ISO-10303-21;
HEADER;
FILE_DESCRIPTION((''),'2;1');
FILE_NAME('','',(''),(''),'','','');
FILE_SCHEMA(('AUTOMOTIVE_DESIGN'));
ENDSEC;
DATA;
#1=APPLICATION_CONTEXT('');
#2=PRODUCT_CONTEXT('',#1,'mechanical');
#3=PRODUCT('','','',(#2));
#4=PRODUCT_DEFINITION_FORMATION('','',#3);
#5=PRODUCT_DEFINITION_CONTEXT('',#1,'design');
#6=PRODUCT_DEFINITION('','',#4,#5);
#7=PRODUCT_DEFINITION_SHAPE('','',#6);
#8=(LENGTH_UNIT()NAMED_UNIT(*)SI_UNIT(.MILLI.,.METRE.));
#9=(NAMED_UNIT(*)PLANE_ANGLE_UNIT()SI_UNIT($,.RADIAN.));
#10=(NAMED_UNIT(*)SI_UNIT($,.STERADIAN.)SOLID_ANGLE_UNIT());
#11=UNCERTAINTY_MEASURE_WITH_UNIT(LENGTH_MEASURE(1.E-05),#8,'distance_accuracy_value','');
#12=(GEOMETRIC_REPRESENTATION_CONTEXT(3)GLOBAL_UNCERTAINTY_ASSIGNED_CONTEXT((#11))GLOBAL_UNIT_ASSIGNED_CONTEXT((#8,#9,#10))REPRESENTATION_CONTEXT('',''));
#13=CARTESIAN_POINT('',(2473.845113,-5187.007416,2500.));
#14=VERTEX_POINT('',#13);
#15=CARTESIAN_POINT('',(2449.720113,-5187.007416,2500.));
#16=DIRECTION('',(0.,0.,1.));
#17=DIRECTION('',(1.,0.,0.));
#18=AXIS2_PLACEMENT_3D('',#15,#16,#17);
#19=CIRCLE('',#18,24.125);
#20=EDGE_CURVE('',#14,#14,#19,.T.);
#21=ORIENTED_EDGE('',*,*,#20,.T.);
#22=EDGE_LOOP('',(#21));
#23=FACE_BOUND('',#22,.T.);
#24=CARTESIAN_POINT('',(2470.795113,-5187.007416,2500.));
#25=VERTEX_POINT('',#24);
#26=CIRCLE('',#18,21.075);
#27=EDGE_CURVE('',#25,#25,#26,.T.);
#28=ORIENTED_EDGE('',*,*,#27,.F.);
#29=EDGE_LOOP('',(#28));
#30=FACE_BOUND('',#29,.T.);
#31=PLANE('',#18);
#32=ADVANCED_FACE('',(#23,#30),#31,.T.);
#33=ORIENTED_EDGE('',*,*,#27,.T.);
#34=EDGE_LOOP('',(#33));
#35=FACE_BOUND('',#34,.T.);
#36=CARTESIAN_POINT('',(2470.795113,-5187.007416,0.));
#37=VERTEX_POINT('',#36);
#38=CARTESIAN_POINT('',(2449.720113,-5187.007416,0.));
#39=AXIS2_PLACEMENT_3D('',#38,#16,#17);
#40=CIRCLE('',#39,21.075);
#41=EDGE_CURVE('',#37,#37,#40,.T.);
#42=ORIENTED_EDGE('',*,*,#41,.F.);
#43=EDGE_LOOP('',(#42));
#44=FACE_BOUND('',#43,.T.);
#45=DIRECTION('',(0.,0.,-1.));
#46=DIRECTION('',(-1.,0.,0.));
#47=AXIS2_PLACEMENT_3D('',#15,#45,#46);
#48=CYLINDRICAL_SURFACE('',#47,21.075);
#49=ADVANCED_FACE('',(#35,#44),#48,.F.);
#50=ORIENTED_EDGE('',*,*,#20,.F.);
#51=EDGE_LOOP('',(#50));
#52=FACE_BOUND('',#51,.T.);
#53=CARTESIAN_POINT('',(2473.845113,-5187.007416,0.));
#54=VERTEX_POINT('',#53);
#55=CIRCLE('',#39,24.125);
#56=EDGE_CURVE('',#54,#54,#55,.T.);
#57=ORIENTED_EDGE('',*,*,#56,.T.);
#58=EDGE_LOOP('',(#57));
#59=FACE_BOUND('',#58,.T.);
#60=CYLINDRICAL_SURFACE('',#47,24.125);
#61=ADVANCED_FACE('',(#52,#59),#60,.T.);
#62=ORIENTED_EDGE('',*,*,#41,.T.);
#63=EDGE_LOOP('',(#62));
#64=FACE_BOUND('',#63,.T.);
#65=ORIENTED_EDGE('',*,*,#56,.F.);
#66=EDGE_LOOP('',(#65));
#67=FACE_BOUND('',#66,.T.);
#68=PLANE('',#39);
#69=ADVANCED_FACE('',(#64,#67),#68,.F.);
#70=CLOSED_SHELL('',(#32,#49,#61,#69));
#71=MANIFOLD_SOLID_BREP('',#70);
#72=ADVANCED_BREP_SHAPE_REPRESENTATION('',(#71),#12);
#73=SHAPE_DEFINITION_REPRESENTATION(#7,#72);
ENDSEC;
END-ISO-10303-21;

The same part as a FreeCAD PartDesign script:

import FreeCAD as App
import Part
import Sketcher

V = App.Vector
Q = App.Units.Quantity

doc = App.newDocument("Part")
body = doc.addObject("PartDesign::Body", "Body")

sketch1 = body.newObject("Sketcher::SketchObject", "Sketch")
sketch1.AttachmentSupport = (doc.getObject("XY_Plane"), [""])
sketch1.MapMode = "FlatFace"
sketch1.addGeometry(Part.Circle(V(2450, -5187, 0), V(0, 0, 1), 24), False)
sketch1.addGeometry(Part.Circle(V(2450, -5187, 0), V(0, 0, 1), 21), False)
sketch1.addConstraint(Sketcher.Constraint("Coincident", 1, 3, 0, 3))
sketch1.addConstraint(Sketcher.Constraint("Diameter", 0, Q("48.25 mm")))
sketch1.addConstraint(Sketcher.Constraint("Diameter", 1, Q("42.15 mm")))
sketch1.addConstraint(Sketcher.Constraint("DistanceX", -1, 1, 0, 3, Q("2449.720113 mm")))
sketch1.addConstraint(Sketcher.Constraint("DistanceY", 0, 3, -1, 1, Q("5187.007416 mm")))
pad1 = body.newObject("PartDesign::Pad", "Pad")
pad1.Profile = sketch1
pad1.Length = 2500

doc.recompute()
